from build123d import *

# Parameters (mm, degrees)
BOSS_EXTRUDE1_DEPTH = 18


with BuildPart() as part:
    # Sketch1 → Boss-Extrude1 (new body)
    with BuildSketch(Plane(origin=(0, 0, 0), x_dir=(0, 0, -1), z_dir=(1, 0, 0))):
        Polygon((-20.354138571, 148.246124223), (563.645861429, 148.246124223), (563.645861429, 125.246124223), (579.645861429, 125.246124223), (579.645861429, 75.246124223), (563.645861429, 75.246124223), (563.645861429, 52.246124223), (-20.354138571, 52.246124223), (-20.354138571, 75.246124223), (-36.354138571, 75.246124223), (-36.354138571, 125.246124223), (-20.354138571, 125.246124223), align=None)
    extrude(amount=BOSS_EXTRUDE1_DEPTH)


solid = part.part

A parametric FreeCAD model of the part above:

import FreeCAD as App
import Part
import Sketcher


def add_polygon(sketch, points):
    """Adds a closed chain of lines whose ends are joined by coincident constraints."""
    first, n = sketch.GeometryCount, len(points)
    for a, b in zip(points, points[1:] + points[:1]):
        sketch.addGeometry(Part.LineSegment(App.Vector(*a, 0), App.Vector(*b, 0)), False)
    for i in range(n):
        sketch.addConstraint(Sketcher.Constraint("Coincident", first + i, 2, first + (i + 1) % n, 1))

doc = App.newDocument("Part")
body = doc.addObject("PartDesign::Body", "Body")

# Sketch on YZ plane
sketch1 = body.newObject("Sketcher::SketchObject", "Sketch")
sketch1.AttachmentSupport = (doc.getObject("YZ_Plane"), [""])
sketch1.MapMode = "FlatFace"
add_polygon(sketch1, [(148, -564), (148, 20), (125, 20), (125, 36), (75, 36), (75, 20), (52, 20), (52, -564), (75, -564), (75, -580), (125, -580), (125, -564)])  # lines 0-11
sketch1.addConstraint(Sketcher.Constraint("Vertical", 0))
sketch1.addConstraint(Sketcher.Constraint("Horizontal", 1))
sketch1.addConstraint(Sketcher.Constraint("Vertical", 2))
sketch1.addConstraint(Sketcher.Constraint("Horizontal", 3))
sketch1.addConstraint(Sketcher.Constraint("Vertical", 4))
sketch1.addConstraint(Sketcher.Constraint("Horizontal", 5))
sketch1.addConstraint(Sketcher.Constraint("Vertical", 6))
sketch1.addConstraint(Sketcher.Constraint("Horizontal", 7))
sketch1.addConstraint(Sketcher.Constraint("Vertical", 8))
sketch1.addConstraint(Sketcher.Constraint("Horizontal", 9))
sketch1.addConstraint(Sketcher.Constraint("Vertical", 10))
sketch1.addConstraint(Sketcher.Constraint("Horizontal", 11))
sketch1.addConstraint(Sketcher.Constraint("Horizontal", 1, 2, 4, 2))
sketch1.addConstraint(Sketcher.Constraint("Horizontal", 7, 2, 10, 2))
sketch1.addConstraint(Sketcher.Constraint("Vertical", 4, 2, 7, 2))
sketch1.addConstraint(Sketcher.Constraint("Vertical", 2, 2, 9, 2))
sketch1.addConstraint(Sketcher.Constraint("Equal", 1, 5))
sketch1.addConstraint(Sketcher.Constraint("Equal", 4, 8))
sketch1.addConstraint(Sketcher.Constraint("DistanceX", 1, 2, 1, 1, 23.0))
sketch1.addConstraint(Sketcher.Constraint("DistanceX", 3, 2, 3, 1, 50.0))
sketch1.addConstraint(Sketcher.Constraint("DistanceY", 0, 1, 0, 2, 584.0))
sketch1.addConstraint(Sketcher.Constraint("DistanceY", 2, 1, 2, 2, 16.0))
sketch1.addConstraint(Sketcher.Constraint("DistanceY", -1, 1, 0, 2, 20.354139))
sketch1.addConstraint(Sketcher.Constraint("DistanceX", -1, 1, 0, 2, 148.246124))
pad1 = body.newObject("PartDesign::Pad", "Pad")
pad1.Profile = sketch1
pad1.Length = 18

doc.recompute()
